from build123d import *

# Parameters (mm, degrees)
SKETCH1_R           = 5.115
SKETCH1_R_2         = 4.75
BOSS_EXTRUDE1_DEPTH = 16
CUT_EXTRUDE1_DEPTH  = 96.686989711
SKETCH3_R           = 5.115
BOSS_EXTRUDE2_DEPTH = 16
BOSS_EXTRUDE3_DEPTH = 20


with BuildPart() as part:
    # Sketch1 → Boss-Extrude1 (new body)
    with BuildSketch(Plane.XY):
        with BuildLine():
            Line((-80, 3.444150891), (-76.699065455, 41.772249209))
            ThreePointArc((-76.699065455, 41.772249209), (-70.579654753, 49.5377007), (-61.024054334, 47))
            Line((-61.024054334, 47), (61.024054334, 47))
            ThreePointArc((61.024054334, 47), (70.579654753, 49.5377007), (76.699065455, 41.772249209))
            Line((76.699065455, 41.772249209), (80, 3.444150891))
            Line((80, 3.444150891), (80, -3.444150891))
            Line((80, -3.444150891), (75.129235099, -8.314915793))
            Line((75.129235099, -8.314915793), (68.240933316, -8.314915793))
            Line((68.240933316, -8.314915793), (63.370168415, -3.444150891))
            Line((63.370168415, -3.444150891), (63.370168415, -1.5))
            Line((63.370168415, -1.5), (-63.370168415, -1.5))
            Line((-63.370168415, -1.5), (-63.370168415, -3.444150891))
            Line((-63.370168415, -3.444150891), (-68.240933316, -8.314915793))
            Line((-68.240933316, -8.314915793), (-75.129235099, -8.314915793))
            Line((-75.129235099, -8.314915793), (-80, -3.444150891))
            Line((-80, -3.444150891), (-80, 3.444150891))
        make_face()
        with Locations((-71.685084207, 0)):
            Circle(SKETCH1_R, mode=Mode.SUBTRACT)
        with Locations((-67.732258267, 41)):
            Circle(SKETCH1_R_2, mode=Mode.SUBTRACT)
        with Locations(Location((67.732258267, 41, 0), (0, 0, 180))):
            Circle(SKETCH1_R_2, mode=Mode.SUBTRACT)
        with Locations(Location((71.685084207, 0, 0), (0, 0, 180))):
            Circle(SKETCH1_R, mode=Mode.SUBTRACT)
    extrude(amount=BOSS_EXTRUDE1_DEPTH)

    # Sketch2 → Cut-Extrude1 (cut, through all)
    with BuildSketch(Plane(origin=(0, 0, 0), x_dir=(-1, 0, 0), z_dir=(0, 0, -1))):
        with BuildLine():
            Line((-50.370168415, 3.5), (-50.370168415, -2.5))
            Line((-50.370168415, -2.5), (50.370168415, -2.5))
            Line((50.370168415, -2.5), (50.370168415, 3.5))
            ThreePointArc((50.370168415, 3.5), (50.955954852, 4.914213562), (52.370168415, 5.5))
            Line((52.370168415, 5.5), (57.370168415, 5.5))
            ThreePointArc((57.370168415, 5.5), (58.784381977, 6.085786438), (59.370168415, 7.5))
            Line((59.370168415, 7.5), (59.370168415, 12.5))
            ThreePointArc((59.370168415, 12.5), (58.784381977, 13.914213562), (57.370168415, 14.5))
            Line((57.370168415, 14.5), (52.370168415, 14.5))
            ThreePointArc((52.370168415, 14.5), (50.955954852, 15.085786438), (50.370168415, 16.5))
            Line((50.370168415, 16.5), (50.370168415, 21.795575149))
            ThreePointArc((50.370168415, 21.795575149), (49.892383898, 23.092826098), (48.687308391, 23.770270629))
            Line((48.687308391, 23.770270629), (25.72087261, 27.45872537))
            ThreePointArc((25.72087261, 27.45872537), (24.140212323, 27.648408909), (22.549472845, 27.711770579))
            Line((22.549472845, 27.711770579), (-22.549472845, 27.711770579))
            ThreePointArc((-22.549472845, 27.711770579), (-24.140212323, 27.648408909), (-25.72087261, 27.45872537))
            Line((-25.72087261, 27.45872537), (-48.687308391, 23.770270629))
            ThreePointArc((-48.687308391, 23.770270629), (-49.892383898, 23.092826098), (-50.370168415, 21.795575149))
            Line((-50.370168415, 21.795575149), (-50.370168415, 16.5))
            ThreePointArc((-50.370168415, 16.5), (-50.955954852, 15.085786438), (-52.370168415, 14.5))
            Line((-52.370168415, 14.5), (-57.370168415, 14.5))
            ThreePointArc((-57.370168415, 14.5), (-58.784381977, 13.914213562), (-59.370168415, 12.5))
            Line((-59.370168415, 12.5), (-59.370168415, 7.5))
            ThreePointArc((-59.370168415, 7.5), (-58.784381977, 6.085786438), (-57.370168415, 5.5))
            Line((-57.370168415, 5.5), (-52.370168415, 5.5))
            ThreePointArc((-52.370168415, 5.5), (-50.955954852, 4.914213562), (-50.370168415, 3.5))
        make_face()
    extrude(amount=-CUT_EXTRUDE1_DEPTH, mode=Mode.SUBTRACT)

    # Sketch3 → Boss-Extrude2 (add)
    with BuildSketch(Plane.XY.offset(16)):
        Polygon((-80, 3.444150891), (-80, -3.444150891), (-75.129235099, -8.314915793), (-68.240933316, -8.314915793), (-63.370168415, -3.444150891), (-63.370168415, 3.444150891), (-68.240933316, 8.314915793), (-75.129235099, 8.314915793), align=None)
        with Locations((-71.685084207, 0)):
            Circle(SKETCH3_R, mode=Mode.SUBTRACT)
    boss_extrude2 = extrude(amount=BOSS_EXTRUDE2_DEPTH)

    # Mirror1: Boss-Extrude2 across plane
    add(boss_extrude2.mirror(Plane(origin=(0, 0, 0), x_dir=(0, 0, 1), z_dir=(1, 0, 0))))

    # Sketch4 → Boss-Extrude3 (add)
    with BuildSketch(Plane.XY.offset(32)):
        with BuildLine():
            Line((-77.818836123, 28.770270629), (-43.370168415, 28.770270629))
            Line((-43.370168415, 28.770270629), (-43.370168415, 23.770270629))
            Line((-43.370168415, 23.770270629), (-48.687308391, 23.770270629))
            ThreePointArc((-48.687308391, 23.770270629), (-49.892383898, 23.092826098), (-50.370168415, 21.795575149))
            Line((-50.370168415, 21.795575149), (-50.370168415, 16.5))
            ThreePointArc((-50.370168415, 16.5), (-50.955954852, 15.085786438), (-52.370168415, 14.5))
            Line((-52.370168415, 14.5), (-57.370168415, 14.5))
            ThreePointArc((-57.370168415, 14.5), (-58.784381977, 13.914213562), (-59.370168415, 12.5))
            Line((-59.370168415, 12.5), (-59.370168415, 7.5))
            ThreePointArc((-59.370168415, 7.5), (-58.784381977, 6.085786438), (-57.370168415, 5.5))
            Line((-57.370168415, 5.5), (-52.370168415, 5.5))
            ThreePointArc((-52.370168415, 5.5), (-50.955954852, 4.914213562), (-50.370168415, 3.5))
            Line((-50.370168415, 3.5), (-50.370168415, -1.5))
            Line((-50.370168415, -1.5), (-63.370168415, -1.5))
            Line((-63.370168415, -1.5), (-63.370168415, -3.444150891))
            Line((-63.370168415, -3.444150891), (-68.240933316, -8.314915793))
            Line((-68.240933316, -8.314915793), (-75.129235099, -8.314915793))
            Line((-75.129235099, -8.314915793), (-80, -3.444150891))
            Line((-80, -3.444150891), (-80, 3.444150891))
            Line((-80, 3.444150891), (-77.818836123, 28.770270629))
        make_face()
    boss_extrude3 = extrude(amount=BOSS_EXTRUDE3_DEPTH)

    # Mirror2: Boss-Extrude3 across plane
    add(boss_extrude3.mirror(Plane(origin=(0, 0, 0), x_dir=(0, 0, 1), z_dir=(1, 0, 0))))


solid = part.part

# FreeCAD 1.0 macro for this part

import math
import FreeCAD as App
import Part
import Sketcher
from FreeCAD import Vector
Q = App.Units.Quantity

doc = App.newDocument("Part")
body = doc.addObject("PartDesign::Body", "Body")

sketch1 = body.newObject("Sketcher::SketchObject", "Sketch")
sketch1.AttachmentSupport = (doc.getObject("XY_Plane"), [""])
sketch1.MapMode = "FlatFace"
sketch1.addGeometry([
    Part.LineSegment(Vector(-76.699065, 41.772249, 0), Vector(-80, 3.444151, 0)),
    Part.LineSegment(Vector(-80, 3.444151, 0), Vector(-80, -3.444151, 0)),
    Part.LineSegment(Vector(-80, -3.444151, 0), Vector(-75.129235, -8.314916, 0)),
    Part.LineSegment(Vector(-75.129235, -8.314916, 0), Vector(-68.240933, -8.314916, 0)),
    Part.LineSegment(Vector(-68.240933, -8.314916, 0), Vector(-63.370168, -3.444151, 0)),
    Part.LineSegment(Vector(-63.370168, -3.444151, 0), Vector(-63.370168, -1.5, 0)),
    Part.LineSegment(Vector(-63.370168, -1.5, 0), Vector(63.370168, -1.5, 0)),
    Part.LineSegment(Vector(63.370168, -1.5, 0), Vector(63.370168, -3.444151, 0)),
    Part.LineSegment(Vector(63.370168, -3.444151, 0), Vector(68.240933, -8.314916, 0)),
    Part.LineSegment(Vector(68.240933, -8.314916, 0), Vector(75.129235, -8.314916, 0)),
    Part.LineSegment(Vector(75.129235, -8.314916, 0), Vector(80, -3.444151, 0)),
    Part.LineSegment(Vector(80, -3.444151, 0), Vector(80, 3.444151, 0)),
    Part.LineSegment(Vector(80, 3.444151, 0), Vector(76.699065, 41.772249, 0)),
    Part.ArcOfCircle(Part.Circle(Vector(67.732258, 41, 0), Vector(0, 0, 1), 9), math.radians(4.922344), math.radians(138.189685)),
    Part.LineSegment(Vector(61.024054, 47, 0), Vector(-61.024054, 47, 0)),
    Part.ArcOfCircle(Part.Circle(Vector(-67.732258, 41, 0), Vector(0, 0, 1), 9), math.radians(41.810315), math.radians(175.077656)),
    Part.Circle(Vector(71.685084, 0, 0), Vector(0, 0, 1), 5.115),
    Part.Circle(Vector(-71.685084, 0, 0), Vector(0, 0, 1), 5.115),
    Part.Circle(Vector(67.732258, 41, 0), Vector(0, 0, 1), 4.75),
    Part.Circle(Vector(-67.732258, 41, 0), Vector(0, 0, 1), 4.75),
], False)
sketch1.addConstraint([
    Sketcher.Constraint("Coincident", 0, 2, 1, 1),
    Sketcher.Constraint("Coincident", 1, 2, 2, 1),
    Sketcher.Constraint("Coincident", 2, 2, 3, 1),
    Sketcher.Constraint("Coincident", 3, 2, 4, 1),
    Sketcher.Constraint("Coincident", 4, 2, 5, 1),
    Sketcher.Constraint("Coincident", 5, 2, 6, 1),
    Sketcher.Constraint("Coincident", 6, 2, 7, 1),
    Sketcher.Constraint("Coincident", 7, 2, 8, 1),
    Sketcher.Constraint("Coincident", 8, 2, 9, 1),
    Sketcher.Constraint("Coincident", 9, 2, 10, 1),
    Sketcher.Constraint("Coincident", 10, 2, 11, 1),
    Sketcher.Constraint("Coincident", 11, 2, 12, 1),
    Sketcher.Constraint("Tangent", 12, 2, 13, 1),
    Sketcher.Constraint("Coincident", 13, 2, 14, 1),
    Sketcher.Constraint("Coincident", 14, 2, 15, 1),
    Sketcher.Constraint("Tangent", 15, 2, 0, 1),
    Sketcher.Constraint("Vertical", 1),
    Sketcher.Constraint("Horizontal", 3),
    Sketcher.Constraint("Vertical", 5),
    Sketcher.Constraint("Horizontal", 6),
    Sketcher.Constraint("Vertical", 7),
    Sketcher.Constraint("Horizontal", 9),
    Sketcher.Constraint("Vertical", 11),
    Sketcher.Constraint("Horizontal", 14),
    Sketcher.Constraint("Coincident", 18, 3, 13, 3),
    Sketcher.Constraint("Coincident", 19, 3, 15, 3),
    Sketcher.Constraint("Equal", 13, 15),
    Sketcher.Constraint("Equal", 16, 17),
    Sketcher.Constraint("Equal", 18, 19),
    Sketcher.Constraint("Symmetric", 16, 3, 17, 3, -1, 1),
    Sketcher.Constraint("Symmetric", 0, 2, 10, 2, -1, 1),
    Sketcher.Constraint("Symmetric", 13, 3, 15, 3, -2),
    Sketcher.Constraint("Symmetric", 4, 2, 7, 2, -2),
    Sketcher.Constraint("Symmetric", 3, 2, 8, 2, -2),
    Sketcher.Constraint("PointOnObject", 16, 3, -1),
    Sketcher.Constraint("Perpendicular", 2, 4),
    Sketcher.Constraint("Perpendicular", 4, 8),
    Sketcher.Constraint("Perpendicular", 8, 10),
    Sketcher.Constraint("Horizontal", 1, 2, 4, 2),
    Sketcher.Constraint("Horizontal", 7, 2, 10, 2),
    Sketcher.Constraint("Horizontal", 0, 2, 11, 2),
    Sketcher.Constraint("Equal", 9, 1),
    Sketcher.Constraint("Radius", 13, Q("9 mm")),
    Sketcher.Constraint("Diameter", 18, Q("9.5 mm")),
    Sketcher.Constraint("Diameter", 16, Q("10.23 mm")),
    Sketcher.Constraint("DistanceY", -1, 1, 13, 3, Q("41 mm")),
    Sketcher.Constraint("DistanceX", 0, 2, -1, 1, Q("80 mm")),
    Sketcher.Constraint("DistanceY", -1, 1, 13, 2, Q("47 mm")),
    Sketcher.Constraint("DistanceY", 5, 2, -1, 1, Q("1.5 mm")),
    Sketcher.Constraint("DistanceX", 3, 1, 3, 2, Q("6.888302 mm")),
    Sketcher.Constraint("Distance", 2, Q("6.888302 mm")),
    Sketcher.Constraint("DistanceX", 14, 2, 14, 1, Q("122.048109 mm")),
    Sketcher.Constraint("DistanceX", 17, 3, 16, 3, Q("143.370168 mm")),
])
pad1 = body.newObject("PartDesign::Pad", "Pad")
pad1.Profile = sketch1
pad1.Length = 16

sketch2 = body.newObject("Sketcher::SketchObject", "Sketch001")
sketch2.AttachmentSupport = (doc.getObject("XY_Plane"), [""])
sketch2.MapMode = "FlatFace"
sketch2.addGeometry([
    Part.LineSegment(Vector(50.370168, 3.5, 0), Vector(50.370168, -2.5, 0)),
    Part.LineSegment(Vector(50.370168, -2.5, 0), Vector(-50.370168, -2.5, 0)),
    Part.LineSegment(Vector(-50.370168, -2.5, 0), Vector(-50.370168, 3.5, 0)),
    Part.ArcOfCircle(Part.Circle(Vector(-52.370168, 3.5, 0), Vector(0, 0, 1), 2), math.radians(0), math.radians(90)),
    Part.LineSegment(Vector(-52.370168, 5.5, 0), Vector(-57.370168, 5.5, 0)),
    Part.ArcOfCircle(Part.Circle(Vector(-57.370168, 7.5, 0), Vector(0, 0, 1), 2), math.radians(-180), math.radians(-90)),
    Part.LineSegment(Vector(-59.370168, 7.5, 0), Vector(-59.370168, 12.5, 0)),
    Part.ArcOfCircle(Part.Circle(Vector(-57.370168, 12.5, 0), Vector(0, 0, 1), 2), math.radians(90), math.radians(180)),
    Part.LineSegment(Vector(-57.370168, 14.5, 0), Vector(-52.370168, 14.5, 0)),
    Part.ArcOfCircle(Part.Circle(Vector(-52.370168, 16.5, 0), Vector(0, 0, 1), 2), math.radians(-90), math.radians(0)),
    Part.LineSegment(Vector(-50.370168, 16.5, 0), Vector(-50.370168, 21.795575, 0)),
    Part.ArcOfCircle(Part.Circle(Vector(-48.370168, 21.795575, 0), Vector(0, 0, 1), 2), math.radians(99.123903), math.radians(180)),
    Part.LineSegment(Vector(-48.687308, 23.770271, 0), Vector(-25.720873, 27.458725, 0)),
    Part.ArcOfCircle(Part.Circle(Vector(-22.549473, 7.711771, 0), Vector(0, 0, 1), 20), math.radians(90), math.radians(99.123903)),
    Part.LineSegment(Vector(-22.549473, 27.711771, 0), Vector(22.549473, 27.711771, 0)),
    Part.ArcOfCircle(Part.Circle(Vector(22.549473, 7.711771, 0), Vector(0, 0, 1), 20), math.radians(80.876097), math.radians(90)),
    Part.LineSegment(Vector(25.720873, 27.458725, 0), Vector(48.687308, 23.770271, 0)),
    Part.ArcOfCircle(Part.Circle(Vector(48.370168, 21.795575, 0), Vector(0, 0, 1), 2), math.radians(0), math.radians(80.876097)),
    Part.LineSegment(Vector(50.370168, 21.795575, 0), Vector(50.370168, 16.5, 0)),
    Part.ArcOfCircle(Part.Circle(Vector(52.370168, 16.5, 0), Vector(0, 0, 1), 2), math.radians(180), math.radians(270)),
    Part.LineSegment(Vector(52.370168, 14.5, 0), Vector(57.370168, 14.5, 0)),
    Part.ArcOfCircle(Part.Circle(Vector(57.370168, 12.5, 0), Vector(0, 0, 1), 2), math.radians(0), math.radians(90)),
    Part.LineSegment(Vector(59.370168, 12.5, 0), Vector(59.370168, 7.5, 0)),
    Part.ArcOfCircle(Part.Circle(Vector(57.370168, 7.5, 0), Vector(0, 0, 1), 2), math.radians(-90), math.radians(0)),
    Part.LineSegment(Vector(57.370168, 5.5, 0), Vector(52.370168, 5.5, 0)),
    Part.ArcOfCircle(Part.Circle(Vector(52.370168, 3.5, 0), Vector(0, 0, 1), 2), math.radians(90), math.radians(180)),
], False)
sketch2.addConstraint([
    Sketcher.Constraint("Coincident", 0, 2, 1, 1),
    Sketcher.Constraint("Coincident", 1, 2, 2, 1),
    Sketcher.Constraint("Tangent", 2, 2, 3, 1),
    Sketcher.Constraint("Tangent", 3, 2, 4, 1),
    Sketcher.Constraint("Tangent", 4, 2, 5, 2),
    Sketcher.Constraint("Tangent", 5, 1, 6, 1),
    Sketcher.Constraint("Tangent", 6, 2, 7, 2),
    Sketcher.Constraint("Tangent", 7, 1, 8, 1),
    Sketcher.Constraint("Tangent", 8, 2, 9, 1),
    Sketcher.Constraint("Tangent", 9, 2, 10, 1),
    Sketcher.Constraint("Tangent", 10, 2, 11, 2),
    Sketcher.Constraint("Tangent", 11, 1, 12, 1),
    Sketcher.Constraint("Tangent", 12, 2, 13, 2),
    Sketcher.Constraint("Tangent", 13, 1, 14, 1),
    Sketcher.Constraint("Tangent", 14, 2, 15, 2),
    Sketcher.Constraint("Tangent", 15, 1, 16, 1),
    Sketcher.Constraint("Tangent", 16, 2, 17, 2),
    Sketcher.Constraint("Tangent", 17, 1, 18, 1),
    Sketcher.Constraint("Tangent", 18, 2, 19, 1),
    Sketcher.Constraint("Tangent", 19, 2, 20, 1),
    Sketcher.Constraint("Tangent", 20, 2, 21, 2),
    Sketcher.Constraint("Tangent", 21, 1, 22, 1),
    Sketcher.Constraint("Tangent", 22, 2, 23, 2),
    Sketcher.Constraint("Tangent", 23, 1, 24, 1),
    Sketcher.Constraint("Tangent", 24, 2, 25, 1),
    Sketcher.Constraint("Tangent", 25, 2, 0, 1),
    Sketcher.Constraint("Vertical", 0),
    Sketcher.Constraint("Horizontal", 1),
    Sketcher.Constraint("Vertical", 2),
    Sketcher.Constraint("Horizontal", 4),
    Sketcher.Constraint("Vertical", 6),
    Sketcher.Constraint("Horizontal", 8),
    Sketcher.Constraint("Vertical", 10),
    Sketcher.Constraint("Horizontal", 14),
    Sketcher.Constraint("Vertical", 18),
    Sketcher.Constraint("Horizontal", 20),
    Sketcher.Constraint("Vertical", 22),
    Sketcher.Constraint("Horizontal", 24),
    Sketcher.Constraint("Equal", 3, 5),
    Sketcher.Constraint("Equal", 5, 7),
    Sketcher.Constraint("Equal", 7, 9),
    Sketcher.Constraint("Equal", 9, 11),
    Sketcher.Constraint("Equal", 13, 15),
    Sketcher.Constraint("Equal", 11, 17),
    Sketcher.Constraint("Equal", 17, 19),
    Sketcher.Constraint("Equal", 19, 21),
    Sketcher.Constraint("Equal", 21, 23),
    Sketcher.Constraint("Equal", 23, 25),
    Sketcher.Constraint("Symmetric", 11, 3, 17, 3, -2),
    Sketcher.Constraint("Symmetric", 7, 3, 21, 3, -2),
    Sketcher.Constraint("Symmetric", 3, 3, 25, 3, -2),
    Sketcher.Constraint("Horizontal", 12, 2, 15, 1),
    Sketcher.Constraint("Vertical", 3, 3, 9, 3),
    Sketcher.Constraint("Equal", 24, 6),
    Sketcher.Constraint("Radius", 3, Q("2 mm")),
    Sketcher.Constraint("Radius", 13, Q("20 mm")),
    Sketcher.Constraint("DistanceX", 4, 2, 4, 1, Q("5 mm")),
    Sketcher.Constraint("DistanceY", 0, 2, 0, 1, Q("6 mm")),
    Sketcher.Constraint("DistanceY", -1, 1, 3, 3, Q("3.5 mm")),
    Sketcher.Constraint("DistanceX", 12, 2, 13, 3, Q("3.1714 mm")),
    Sketcher.Constraint("DistanceY", 11, 1, 13, 1, Q("3.9415 mm")),
    Sketcher.Constraint("DistanceX", 1, 2, 1, 1, Q("100.740337 mm")),
    Sketcher.Constraint("DistanceY", 10, 1, 10, 2, Q("5.295575 mm")),
])
pocket1 = body.newObject("PartDesign::Pocket", "Pocket")
pocket1.Profile = sketch2
pocket1.Type = "ThroughAll"
pocket1.Reversed = True

sketch3 = body.newObject("Sketcher::SketchObject", "Sketch002")
sketch3.AttachmentSupport = (doc.getObject("XY_Plane"), [""])
sketch3.MapMode = "FlatFace"
sketch3.AttachmentOffset = App.Placement(Vector(0, 0, 16), App.Rotation())
sketch3.addGeometry([
    Part.LineSegment(Vector(-80, 3.444151, 0), Vector(-80, -3.444151, 0)),
    Part.LineSegment(Vector(-80, -3.444151, 0), Vector(-75.129235, -8.314916, 0)),
    Part.LineSegment(Vector(-75.129235, -8.314916, 0), Vector(-68.240933, -8.314916, 0)),
    Part.LineSegment(Vector(-68.240933, -8.314916, 0), Vector(-63.370168, -3.444151, 0)),
    Part.LineSegment(Vector(-63.370168, -3.444151, 0), Vector(-63.370168, 3.444151, 0)),
    Part.LineSegment(Vector(-63.370168, 3.444151, 0), Vector(-68.240933, 8.314916, 0)),
    Part.LineSegment(Vector(-68.240933, 8.314916, 0), Vector(-75.129235, 8.314916, 0)),
    Part.LineSegment(Vector(-75.129235, 8.314916, 0), Vector(-80, 3.444151, 0)),
    Part.Circle(Vector(-71.685084, 0, 0), Vector(0, 0, 1), 5.115),
], False)
sketch3.addConstraint([
    Sketcher.Constraint("Coincident", 0, 2, 1, 1),
    Sketcher.Constraint("Coincident", 1, 2, 2, 1),
    Sketcher.Constraint("Coincident", 2, 2, 3, 1),
    Sketcher.Constraint("Coincident", 3, 2, 4, 1),
    Sketcher.Constraint("Coincident", 4, 2, 5, 1),
    Sketcher.Constraint("Coincident", 5, 2, 6, 1),
    Sketcher.Constraint("Coincident", 6, 2, 7, 1),
    Sketcher.Constraint("Coincident", 7, 2, 0, 1),
    Sketcher.Constraint("Vertical", 0),
    Sketcher.Constraint("Horizontal", 2),
    Sketcher.Constraint("Vertical", 4),
    Sketcher.Constraint("Horizontal", 6),
    Sketcher.Constraint("Symmetric", 2, 2, 5, 2, -1),
    Sketcher.Constraint("PointOnObject", 8, 3, -1),
    Sketcher.Constraint("Perpendicular", 1, 3),
    Sketcher.Constraint("Perpendicular", 3, 5),
    Sketcher.Constraint("Perpendicular", 5, 7),
    Sketcher.Constraint("Horizontal", 0, 2, 3, 2),
    Sketcher.Constraint("Horizontal", 4, 2, 7, 2),
    Sketcher.Constraint("Vertical", 1, 2, 6, 2),
    Sketcher.Constraint("Equal", 6, 0),
    Sketcher.Constraint("Diameter", 8, Q("10.23 mm")),
    Sketcher.Constraint("DistanceX", 0, 2, -1, 1, Q("80 mm")),
    Sketcher.Constraint("DistanceX", 2, 1, 2, 2, Q("6.888302 mm")),
    Sketcher.Constraint("Distance", 1, Q("6.888302 mm")),
    Sketcher.Constraint("DistanceX", 1, 2, 8, 3, Q("3.444151 mm")),
])
pad2 = body.newObject("PartDesign::Pad", "Pad001")
pad2.Profile = sketch3
pad2.Length = 16
doc.recompute()

mirrored = body.newObject("PartDesign::Mirrored", "Mirrored")
mirrored.Originals = [pad2]
mirrored.MirrorPlane = (doc.getObject("YZ_Plane"), [""])
body.Tip = mirrored

sketch4 = body.newObject("Sketcher::SketchObject", "Sketch003")
sketch4.AttachmentSupport = (doc.getObject("XY_Plane"), [""])
sketch4.MapMode = "FlatFace"
sketch4.AttachmentOffset = App.Placement(Vector(0, 0, 32), App.Rotation())
sketch4.addGeometry([
    Part.LineSegment(Vector(-43.370168, 28.770271, 0), Vector(-77.818836, 28.770271, 0)),
    Part.LineSegment(Vector(-77.818836, 28.770271, 0), Vector(-80, 3.444151, 0)),
    Part.LineSegment(Vector(-80, 3.444151, 0), Vector(-80, -3.444151, 0)),
    Part.LineSegment(Vector(-80, -3.444151, 0), Vector(-75.129235, -8.314916, 0)),
    Part.LineSegment(Vector(-75.129235, -8.314916, 0), Vector(-68.240933, -8.314916, 0)),
    Part.LineSegment(Vector(-68.240933, -8.314916, 0), Vector(-63.370168, -3.444151, 0)),
    Part.LineSegment(Vector(-63.370168, -3.444151, 0), Vector(-63.370168, -1.5, 0)),
    Part.LineSegment(Vector(-63.370168, -1.5, 0), Vector(-50.370168, -1.5, 0)),
    Part.LineSegment(Vector(-50.370168, -1.5, 0), Vector(-50.370168, 3.5, 0)),
    Part.ArcOfCircle(Part.Circle(Vector(-52.370168, 3.5, 0), Vector(0, 0, 1), 2), math.radians(0), math.radians(90)),
    Part.LineSegment(Vector(-52.370168, 5.5, 0), Vector(-57.370168, 5.5, 0)),
    Part.ArcOfCircle(Part.Circle(Vector(-57.370168, 7.5, 0), Vector(0, 0, 1), 2), math.radians(-180), math.radians(-90)),
    Part.LineSegment(Vector(-59.370168, 7.5, 0), Vector(-59.370168, 12.5, 0)),
    Part.ArcOfCircle(Part.Circle(Vector(-57.370168, 12.5, 0), Vector(0, 0, 1), 2), math.radians(90), math.radians(180)),
    Part.LineSegment(Vector(-57.370168, 14.5, 0), Vector(-52.370168, 14.5, 0)),
    Part.ArcOfCircle(Part.Circle(Vector(-52.370168, 16.5, 0), Vector(0, 0, 1), 2), math.radians(-90), math.radians(0)),
    Part.LineSegment(Vector(-50.370168, 16.5, 0), Vector(-50.370168, 21.795575, 0)),
    Part.ArcOfCircle(Part.Circle(Vector(-48.370168, 21.795575, 0), Vector(0, 0, 1), 2), math.radians(99.123903), math.radians(180)),
    Part.LineSegment(Vector(-48.687308, 23.770271, 0), Vector(-43.370168, 23.770271, 0)),
    Part.LineSegment(Vector(-43.370168, 23.770271, 0), Vector(-43.370168, 28.770271, 0)),
], False)
sketch4.addConstraint([
    Sketcher.Constraint("Coincident", 0, 2, 1, 1),
    Sketcher.Constraint("Coincident", 1, 2, 2, 1),
    Sketcher.Constraint("Coincident", 2, 2, 3, 1),
    Sketcher.Constraint("Coincident", 3, 2, 4, 1),
    Sketcher.Constraint("Coincident", 4, 2, 5, 1),
    Sketcher.Constraint("Coincident", 5, 2, 6, 1),
    Sketcher.Constraint("Coincident", 6, 2, 7, 1),
    Sketcher.Constraint("Coincident", 7, 2, 8, 1),
    Sketcher.Constraint("Tangent", 8, 2, 9, 1),
    Sketcher.Constraint("Tangent", 9, 2, 10, 1),
    Sketcher.Constraint("Tangent", 10, 2, 11, 2),
    Sketcher.Constraint("Tangent", 11, 1, 12, 1),
    Sketcher.Constraint("Tangent", 12, 2, 13, 2),
    Sketcher.Constraint("Tangent", 13, 1, 14, 1),
    Sketcher.Constraint("Tangent", 14, 2, 15, 1),
    Sketcher.Constraint("Tangent", 15, 2, 16, 1),
    Sketcher.Constraint("Tangent", 16, 2, 17, 2),
    Sketcher.Constraint("Coincident", 17, 1, 18, 1),
    Sketcher.Constraint("Coincident", 18, 2, 19, 1),
    Sketcher.Constraint("Coincident", 19, 2, 0, 1),
    Sketcher.Constraint("Horizontal", 0),
    Sketcher.Constraint("Vertical", 2),
    Sketcher.Constraint("Horizontal", 4),
    Sketcher.Constraint("Vertical", 6),
    Sketcher.Constraint("Horizontal", 7),
    Sketcher.Constraint("Vertical", 8),
    Sketcher.Constraint("Horizontal", 10),
    Sketcher.Constraint("Vertical", 12),
    Sketcher.Constraint("Horizontal", 14),
    Sketcher.Constraint("Vertical", 16),
    Sketcher.Constraint("Horizontal", 18),
    Sketcher.Constraint("Vertical", 19),
    Sketcher.Constraint("Equal", 9, 11),
    Sketcher.Constraint("Equal", 11, 13),
    Sketcher.Constraint("Equal", 13, 15),
    Sketcher.Constraint("Equal", 15, 17),
    Sketcher.Constraint("Perpendicular", 3, 5),
    Sketcher.Constraint("Horizontal", 2, 2, 5, 2),
    Sketcher.Constraint("Vertical", 9, 3, 15, 3),
    Sketcher.Constraint("Equal", 4, 2),
    Sketcher.Constraint("Equal", 14, 8),
    Sketcher.Constraint("Equal", 8, 12),
    Sketcher.Constraint("Equal", 12, 19),
    Sketcher.Constraint("Equal", 3, 5),
    Sketcher.Constraint("Radius", 9, Q("2 mm")),
    Sketcher.Constraint("DistanceX", 7, 1, 7, 2, Q("13 mm")),
    Sketcher.Constraint("DistanceX", 10, 2, 10, 1, Q("5 mm")),
    Sketcher.Constraint("DistanceX", 1, 2, -1, 1, Q("80 mm")),
    Sketcher.Constraint("DistanceX", 17, 3, 18, 2, Q("5 mm")),
    Sketcher.Constraint("DistanceY", -1, 1, 9, 3, Q("3.5 mm")),
    Sketcher.Constraint("DistanceX", 4, 1, 4, 2, Q("6.888302 mm")),
    Sketcher.Constraint("Distance", 3, Q("6.888302 mm")),
    Sketcher.Constraint("DistanceX", 18, 1, 18, 2, Q("5.31714 mm")),
    Sketcher.Constraint("DistanceY", 6, 1, 6, 2, Q("1.944151 mm")),
    Sketcher.Constraint("Distance", 1, Q("25.419871 mm")),
    Sketcher.Constraint("DistanceX", 0, 2, 0, 1, Q("34.448668 mm")),
])
pad3 = body.newObject("PartDesign::Pad", "Pad002")
pad3.Profile = sketch4
pad3.Length = 20
doc.recompute()

mirrored2 = body.newObject("PartDesign::Mirrored", "Mirrored001")
mirrored2.Originals = [pad3]
mirrored2.MirrorPlane = (doc.getObject("YZ_Plane"), [""])
body.Tip = mirrored2

doc.recompute()
